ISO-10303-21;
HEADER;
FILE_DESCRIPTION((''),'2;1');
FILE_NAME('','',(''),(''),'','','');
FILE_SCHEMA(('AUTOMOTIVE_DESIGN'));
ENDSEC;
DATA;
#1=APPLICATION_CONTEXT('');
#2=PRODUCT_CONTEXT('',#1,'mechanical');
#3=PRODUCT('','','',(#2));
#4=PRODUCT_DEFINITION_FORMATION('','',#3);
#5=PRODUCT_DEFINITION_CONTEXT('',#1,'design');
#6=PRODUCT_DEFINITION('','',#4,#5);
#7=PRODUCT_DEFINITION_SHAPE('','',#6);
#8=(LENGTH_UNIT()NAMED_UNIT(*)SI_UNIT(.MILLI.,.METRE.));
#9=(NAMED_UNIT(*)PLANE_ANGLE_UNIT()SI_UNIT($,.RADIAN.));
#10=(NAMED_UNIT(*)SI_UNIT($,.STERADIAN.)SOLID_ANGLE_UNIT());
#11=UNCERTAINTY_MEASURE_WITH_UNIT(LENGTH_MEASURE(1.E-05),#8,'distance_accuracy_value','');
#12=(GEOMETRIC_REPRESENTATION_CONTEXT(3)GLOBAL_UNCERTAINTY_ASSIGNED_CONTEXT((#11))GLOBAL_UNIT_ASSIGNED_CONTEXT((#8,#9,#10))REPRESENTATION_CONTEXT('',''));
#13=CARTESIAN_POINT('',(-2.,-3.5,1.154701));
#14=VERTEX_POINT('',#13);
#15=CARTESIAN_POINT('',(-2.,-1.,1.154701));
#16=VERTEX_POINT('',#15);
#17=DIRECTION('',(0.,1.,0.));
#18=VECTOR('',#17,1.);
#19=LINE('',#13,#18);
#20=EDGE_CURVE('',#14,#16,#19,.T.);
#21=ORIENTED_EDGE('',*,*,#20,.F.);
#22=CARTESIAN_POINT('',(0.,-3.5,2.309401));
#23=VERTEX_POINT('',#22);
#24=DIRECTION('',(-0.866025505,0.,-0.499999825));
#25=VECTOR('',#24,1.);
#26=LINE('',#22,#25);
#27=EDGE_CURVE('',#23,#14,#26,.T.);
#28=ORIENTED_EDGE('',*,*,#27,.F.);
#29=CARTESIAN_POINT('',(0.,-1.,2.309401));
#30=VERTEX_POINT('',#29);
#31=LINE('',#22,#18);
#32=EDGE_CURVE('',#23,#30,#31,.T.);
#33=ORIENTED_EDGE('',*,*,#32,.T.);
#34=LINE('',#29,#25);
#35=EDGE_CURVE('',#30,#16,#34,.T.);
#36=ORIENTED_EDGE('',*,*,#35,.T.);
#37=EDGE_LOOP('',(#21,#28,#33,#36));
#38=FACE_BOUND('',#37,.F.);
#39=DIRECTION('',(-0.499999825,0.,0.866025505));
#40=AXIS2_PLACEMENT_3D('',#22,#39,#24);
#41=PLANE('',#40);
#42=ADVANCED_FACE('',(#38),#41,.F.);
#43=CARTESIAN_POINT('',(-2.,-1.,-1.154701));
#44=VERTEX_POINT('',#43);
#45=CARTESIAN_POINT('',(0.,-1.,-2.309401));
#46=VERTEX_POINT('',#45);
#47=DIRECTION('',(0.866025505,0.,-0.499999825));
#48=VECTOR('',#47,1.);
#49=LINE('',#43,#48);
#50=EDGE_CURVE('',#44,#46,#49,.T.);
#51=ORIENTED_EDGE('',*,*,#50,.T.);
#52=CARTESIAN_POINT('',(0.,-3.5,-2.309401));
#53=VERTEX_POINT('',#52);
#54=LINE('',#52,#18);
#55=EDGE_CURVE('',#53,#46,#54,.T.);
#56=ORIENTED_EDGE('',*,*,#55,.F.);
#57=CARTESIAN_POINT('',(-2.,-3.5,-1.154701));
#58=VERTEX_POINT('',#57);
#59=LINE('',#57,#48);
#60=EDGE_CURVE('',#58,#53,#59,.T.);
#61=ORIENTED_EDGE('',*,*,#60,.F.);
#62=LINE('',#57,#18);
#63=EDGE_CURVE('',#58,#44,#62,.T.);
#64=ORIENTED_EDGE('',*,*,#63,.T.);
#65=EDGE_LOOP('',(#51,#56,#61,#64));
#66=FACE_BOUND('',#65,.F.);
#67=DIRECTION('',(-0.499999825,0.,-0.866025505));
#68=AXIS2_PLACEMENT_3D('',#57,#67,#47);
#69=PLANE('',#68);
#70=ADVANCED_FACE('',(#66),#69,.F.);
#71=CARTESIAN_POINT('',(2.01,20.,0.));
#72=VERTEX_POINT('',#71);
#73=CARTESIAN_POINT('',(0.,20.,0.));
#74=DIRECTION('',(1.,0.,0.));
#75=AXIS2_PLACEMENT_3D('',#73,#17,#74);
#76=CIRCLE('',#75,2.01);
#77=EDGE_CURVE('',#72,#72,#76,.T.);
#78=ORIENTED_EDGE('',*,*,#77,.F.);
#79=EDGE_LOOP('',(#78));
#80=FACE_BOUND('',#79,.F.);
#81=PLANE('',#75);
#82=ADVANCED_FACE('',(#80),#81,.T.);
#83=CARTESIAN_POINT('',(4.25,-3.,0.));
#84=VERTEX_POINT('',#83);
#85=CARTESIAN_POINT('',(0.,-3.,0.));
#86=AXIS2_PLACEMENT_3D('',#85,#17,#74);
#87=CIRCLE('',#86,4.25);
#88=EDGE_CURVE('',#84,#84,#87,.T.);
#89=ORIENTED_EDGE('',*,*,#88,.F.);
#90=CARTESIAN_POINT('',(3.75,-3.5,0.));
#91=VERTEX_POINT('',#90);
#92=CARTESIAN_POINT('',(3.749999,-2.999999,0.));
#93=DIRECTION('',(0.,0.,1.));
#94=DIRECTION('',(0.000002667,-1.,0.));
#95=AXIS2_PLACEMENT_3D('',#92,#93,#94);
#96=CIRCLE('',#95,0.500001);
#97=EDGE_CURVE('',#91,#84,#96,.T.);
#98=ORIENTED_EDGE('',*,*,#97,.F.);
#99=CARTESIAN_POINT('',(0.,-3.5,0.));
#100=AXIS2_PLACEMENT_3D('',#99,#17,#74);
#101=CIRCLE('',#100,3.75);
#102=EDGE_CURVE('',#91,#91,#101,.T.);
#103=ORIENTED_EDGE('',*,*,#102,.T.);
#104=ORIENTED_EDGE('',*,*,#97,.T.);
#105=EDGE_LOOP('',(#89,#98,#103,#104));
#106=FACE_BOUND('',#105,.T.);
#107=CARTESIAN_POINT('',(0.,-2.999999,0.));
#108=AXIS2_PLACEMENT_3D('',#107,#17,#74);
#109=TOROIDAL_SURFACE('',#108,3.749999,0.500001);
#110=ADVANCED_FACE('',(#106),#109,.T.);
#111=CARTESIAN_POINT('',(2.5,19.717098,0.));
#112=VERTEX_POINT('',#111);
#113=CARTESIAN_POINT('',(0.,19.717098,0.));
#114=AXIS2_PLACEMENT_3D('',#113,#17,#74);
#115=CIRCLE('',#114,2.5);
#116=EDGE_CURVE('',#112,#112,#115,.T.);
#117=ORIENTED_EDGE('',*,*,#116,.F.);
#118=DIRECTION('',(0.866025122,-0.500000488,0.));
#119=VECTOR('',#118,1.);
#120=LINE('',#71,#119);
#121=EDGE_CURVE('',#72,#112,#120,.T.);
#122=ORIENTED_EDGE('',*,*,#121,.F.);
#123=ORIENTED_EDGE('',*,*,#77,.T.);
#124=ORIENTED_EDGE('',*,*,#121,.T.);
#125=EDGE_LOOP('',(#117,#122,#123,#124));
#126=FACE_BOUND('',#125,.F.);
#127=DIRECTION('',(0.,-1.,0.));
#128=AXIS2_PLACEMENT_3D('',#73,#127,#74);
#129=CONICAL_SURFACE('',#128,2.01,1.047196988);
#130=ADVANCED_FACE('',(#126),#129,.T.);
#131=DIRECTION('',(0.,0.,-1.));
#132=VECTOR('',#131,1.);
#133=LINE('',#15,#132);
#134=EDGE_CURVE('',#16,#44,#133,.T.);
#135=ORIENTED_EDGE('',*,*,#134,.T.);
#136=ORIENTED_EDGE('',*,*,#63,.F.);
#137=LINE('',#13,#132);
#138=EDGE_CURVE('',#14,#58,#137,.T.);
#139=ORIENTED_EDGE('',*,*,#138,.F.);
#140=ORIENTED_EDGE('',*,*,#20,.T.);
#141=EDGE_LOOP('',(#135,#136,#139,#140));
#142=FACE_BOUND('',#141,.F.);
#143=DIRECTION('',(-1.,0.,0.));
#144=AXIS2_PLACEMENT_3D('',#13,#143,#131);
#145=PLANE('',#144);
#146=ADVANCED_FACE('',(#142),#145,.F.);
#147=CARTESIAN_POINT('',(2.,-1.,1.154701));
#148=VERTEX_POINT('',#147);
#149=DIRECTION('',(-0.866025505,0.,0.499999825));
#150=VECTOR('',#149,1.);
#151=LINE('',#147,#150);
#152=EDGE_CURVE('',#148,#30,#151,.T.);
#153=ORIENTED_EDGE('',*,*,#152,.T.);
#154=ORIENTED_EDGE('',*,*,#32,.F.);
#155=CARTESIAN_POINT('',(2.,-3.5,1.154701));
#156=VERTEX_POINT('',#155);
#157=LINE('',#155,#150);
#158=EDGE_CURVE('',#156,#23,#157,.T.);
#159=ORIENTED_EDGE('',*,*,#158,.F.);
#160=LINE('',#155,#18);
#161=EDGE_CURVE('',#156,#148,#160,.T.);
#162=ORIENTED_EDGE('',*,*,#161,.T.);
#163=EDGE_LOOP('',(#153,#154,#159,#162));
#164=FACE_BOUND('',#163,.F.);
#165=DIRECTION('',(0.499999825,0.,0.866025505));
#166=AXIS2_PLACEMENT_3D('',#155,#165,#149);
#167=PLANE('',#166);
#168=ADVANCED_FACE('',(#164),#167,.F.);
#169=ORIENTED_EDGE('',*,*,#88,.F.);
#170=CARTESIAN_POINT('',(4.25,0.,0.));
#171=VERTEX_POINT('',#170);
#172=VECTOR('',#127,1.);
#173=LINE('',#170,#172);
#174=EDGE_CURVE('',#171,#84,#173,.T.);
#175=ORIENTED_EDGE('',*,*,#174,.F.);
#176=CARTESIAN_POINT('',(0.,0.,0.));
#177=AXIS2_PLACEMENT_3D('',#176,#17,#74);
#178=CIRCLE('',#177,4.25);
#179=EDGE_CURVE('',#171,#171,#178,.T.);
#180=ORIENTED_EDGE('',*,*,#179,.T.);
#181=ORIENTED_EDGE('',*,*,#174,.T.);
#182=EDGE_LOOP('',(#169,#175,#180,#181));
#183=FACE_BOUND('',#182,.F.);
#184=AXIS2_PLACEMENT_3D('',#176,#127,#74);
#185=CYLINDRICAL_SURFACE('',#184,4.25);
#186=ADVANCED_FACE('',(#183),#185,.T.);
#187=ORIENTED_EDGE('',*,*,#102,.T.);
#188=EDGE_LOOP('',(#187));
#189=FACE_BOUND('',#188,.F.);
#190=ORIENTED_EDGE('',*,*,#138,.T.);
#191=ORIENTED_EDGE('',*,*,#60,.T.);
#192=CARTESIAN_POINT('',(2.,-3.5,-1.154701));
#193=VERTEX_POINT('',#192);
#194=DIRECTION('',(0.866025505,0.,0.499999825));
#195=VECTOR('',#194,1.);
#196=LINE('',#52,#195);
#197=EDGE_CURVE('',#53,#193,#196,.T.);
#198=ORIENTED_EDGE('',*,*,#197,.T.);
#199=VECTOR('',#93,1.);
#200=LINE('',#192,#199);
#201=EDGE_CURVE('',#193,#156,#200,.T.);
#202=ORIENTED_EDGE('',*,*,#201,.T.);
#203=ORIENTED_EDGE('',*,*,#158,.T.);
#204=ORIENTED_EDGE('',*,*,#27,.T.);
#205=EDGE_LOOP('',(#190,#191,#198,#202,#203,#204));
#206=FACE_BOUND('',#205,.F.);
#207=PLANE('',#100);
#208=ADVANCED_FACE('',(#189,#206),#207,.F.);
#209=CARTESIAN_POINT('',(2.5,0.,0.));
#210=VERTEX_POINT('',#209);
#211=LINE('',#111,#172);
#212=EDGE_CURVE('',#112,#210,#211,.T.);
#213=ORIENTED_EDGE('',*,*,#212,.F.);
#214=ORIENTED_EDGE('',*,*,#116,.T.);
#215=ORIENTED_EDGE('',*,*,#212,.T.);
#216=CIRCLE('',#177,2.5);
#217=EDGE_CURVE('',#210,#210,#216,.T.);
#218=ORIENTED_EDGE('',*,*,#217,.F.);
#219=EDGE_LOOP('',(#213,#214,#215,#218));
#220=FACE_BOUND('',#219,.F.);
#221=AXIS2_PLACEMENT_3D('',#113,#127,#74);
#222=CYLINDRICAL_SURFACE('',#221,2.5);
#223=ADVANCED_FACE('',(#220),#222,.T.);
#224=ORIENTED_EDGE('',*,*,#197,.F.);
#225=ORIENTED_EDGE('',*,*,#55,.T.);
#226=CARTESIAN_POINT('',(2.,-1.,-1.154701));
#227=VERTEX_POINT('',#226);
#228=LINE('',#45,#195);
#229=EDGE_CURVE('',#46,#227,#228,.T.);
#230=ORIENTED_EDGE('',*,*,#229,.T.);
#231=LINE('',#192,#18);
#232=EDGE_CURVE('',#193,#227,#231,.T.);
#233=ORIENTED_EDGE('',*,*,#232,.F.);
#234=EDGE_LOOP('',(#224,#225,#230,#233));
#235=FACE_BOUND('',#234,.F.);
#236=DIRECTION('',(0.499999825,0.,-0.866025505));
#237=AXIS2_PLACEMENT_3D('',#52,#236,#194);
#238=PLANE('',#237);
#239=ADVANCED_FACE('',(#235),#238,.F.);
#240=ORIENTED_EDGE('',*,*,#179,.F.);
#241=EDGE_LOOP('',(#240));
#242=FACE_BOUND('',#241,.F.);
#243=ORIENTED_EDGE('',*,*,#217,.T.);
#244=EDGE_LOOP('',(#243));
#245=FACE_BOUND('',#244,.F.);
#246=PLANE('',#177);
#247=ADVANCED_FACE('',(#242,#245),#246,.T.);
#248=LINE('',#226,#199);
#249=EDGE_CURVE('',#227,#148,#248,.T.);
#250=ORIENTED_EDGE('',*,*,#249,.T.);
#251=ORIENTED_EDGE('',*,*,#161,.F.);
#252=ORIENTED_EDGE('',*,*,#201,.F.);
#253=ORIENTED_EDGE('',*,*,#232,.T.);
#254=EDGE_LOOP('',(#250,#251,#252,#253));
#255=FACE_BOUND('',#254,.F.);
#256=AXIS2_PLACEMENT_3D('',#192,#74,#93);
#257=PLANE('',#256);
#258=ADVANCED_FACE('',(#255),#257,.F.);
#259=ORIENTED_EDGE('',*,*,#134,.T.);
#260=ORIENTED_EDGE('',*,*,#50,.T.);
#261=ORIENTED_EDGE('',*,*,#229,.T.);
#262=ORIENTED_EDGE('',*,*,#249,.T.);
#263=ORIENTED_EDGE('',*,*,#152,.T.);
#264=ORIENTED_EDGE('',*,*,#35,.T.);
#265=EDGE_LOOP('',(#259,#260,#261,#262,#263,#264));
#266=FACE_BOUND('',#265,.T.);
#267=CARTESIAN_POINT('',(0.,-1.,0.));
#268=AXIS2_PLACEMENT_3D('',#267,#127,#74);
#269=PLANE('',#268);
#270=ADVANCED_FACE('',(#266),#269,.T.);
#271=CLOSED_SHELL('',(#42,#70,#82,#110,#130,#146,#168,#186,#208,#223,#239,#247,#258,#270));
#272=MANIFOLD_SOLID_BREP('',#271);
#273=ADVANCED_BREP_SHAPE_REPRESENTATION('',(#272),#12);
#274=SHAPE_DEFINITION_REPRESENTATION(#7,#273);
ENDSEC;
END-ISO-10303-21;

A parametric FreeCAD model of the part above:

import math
import FreeCAD as App
import Part
import Sketcher
Q = App.Units.Quantity

doc = App.newDocument("Part")
params = doc.addObject("Spreadsheet::Sheet", "Params")
for row, (alias, value) in enumerate([
    ("sketch1_radius", "0.500001 mm"),
    ("sketch1_height", "3 mm"),
    ("sketch1_height2", "23.5 mm"),
    ("sketch1_width", "1.75 mm"),
    ("sketch1_width2", "2.01 mm"),
    ("revolution_angle", "360 deg"),
    ("pocket1_length", "2.5 mm"),
], start=1):
    params.set(f"A{row}", alias)
    params.set(f"B{row}", "=" + value)
    params.setAlias(f"B{row}", alias)

body = doc.addObject("PartDesign::Body", "Body")

sketch1 = body.newObject("Sketcher::SketchObject", "Sketch")
sketch1.AttachmentSupport = (doc.getObject("XY_Plane"), [""])
sketch1.MapMode = "FlatFace"
sketch1.addGeometry(Part.LineSegment(App.Vector(4.25, 0, 0), App.Vector(2.5, 0, 0)), False)
sketch1.addGeometry(Part.LineSegment(App.Vector(2.5, 0, 0), App.Vector(2.5, 19.717098, 0)), False)
sketch1.addGeometry(Part.LineSegment(App.Vector(2.5, 19.717098, 0), App.Vector(2.01, 20, 0)), False)
sketch1.addGeometry(Part.LineSegment(App.Vector(2.01, 20, 0), App.Vector(0, 20, 0)), False)
sketch1.addGeometry(Part.LineSegment(App.Vector(0, 20, 0), App.Vector(0, -3.5, 0)), False)
sketch1.addGeometry(Part.LineSegment(App.Vector(0, -3.5, 0), App.Vector(3.75, -3.5, 0)), False)
sketch1.addGeometry(Part.ArcOfCircle(Part.Circle(App.Vector(3.749999, -2.999999, 0), App.Vector(0, 0, 1), 0.500001), math.radians(-89.999847), math.radians(-0.000153)), False)
sketch1.addGeometry(Part.LineSegment(App.Vector(4.25, -3, 0), App.Vector(4.25, 0, 0)), False)
sketch1.addConstraint(Sketcher.Constraint("Coincident", 0, 2, 1, 1))
sketch1.addConstraint(Sketcher.Constraint("Coincident", 1, 2, 2, 1))
sketch1.addConstraint(Sketcher.Constraint("Coincident", 2, 2, 3, 1))
sketch1.addConstraint(Sketcher.Constraint("Coincident", 3, 2, 4, 1))
sketch1.addConstraint(Sketcher.Constraint("Coincident", 4, 2, 5, 1))
sketch1.addConstraint(Sketcher.Constraint("Coincident", 5, 2, 6, 1))
sketch1.addConstraint(Sketcher.Constraint("Coincident", 6, 2, 7, 1))
sketch1.addConstraint(Sketcher.Constraint("Coincident", 7, 2, 0, 1))
sketch1.addConstraint(Sketcher.Constraint("Horizontal", 0))
sketch1.addConstraint(Sketcher.Constraint("Vertical", 1))
sketch1.addConstraint(Sketcher.Constraint("Horizontal", 3))
sketch1.addConstraint(Sketcher.Constraint("Vertical", 4))
sketch1.addConstraint(Sketcher.Constraint("Horizontal", 5))
sketch1.addConstraint(Sketcher.Constraint("Vertical", 7))
sketch1.addConstraint(Sketcher.Constraint("PointOnObject", 0, 2, -1))
sketch1.addConstraint(Sketcher.Constraint("PointOnObject", 3, 2, -2))
sketch1.addConstraint(Sketcher.Constraint("Vertical", 6, 3, 5, 2))
sketch1.addConstraint(Sketcher.Constraint("Radius", 6, 0.500001))
sketch1.addConstraint(Sketcher.Constraint("DistanceY", 7, 1, 7, 2, 3.0))
sketch1.addConstraint(Sketcher.Constraint("DistanceY", 4, 2, 4, 1, 23.5))
sketch1.addConstraint(Sketcher.Constraint("DistanceY", 6, 3, -1, 1, 2.999999))
sketch1.addConstraint(Sketcher.Constraint("DistanceX", 0, 2, 0, 1, 1.75))
sketch1.addConstraint(Sketcher.Constraint("DistanceX", 3, 2, 3, 1, 2.01))
sketch1.addConstraint(Sketcher.Constraint("DistanceX", 5, 1, 5, 2, 3.75))
sketch1.addConstraint(Sketcher.Constraint("DistanceY", 1, 1, 1, 2, 19.717098))
sketch1.setExpression("Constraints[17]", "Params.sketch1_radius")
sketch1.setExpression("Constraints[18]", "Params.sketch1_height")
sketch1.setExpression("Constraints[19]", "Params.sketch1_height2")
sketch1.setExpression("Constraints[21]", "Params.sketch1_width")
sketch1.setExpression("Constraints[22]", "Params.sketch1_width2")
revolution = body.newObject("PartDesign::Revolution", "Revolution")
revolution.Profile = sketch1
revolution.ReferenceAxis = (sketch1, ["V_Axis"])
revolution.setExpression("Angle", "Params.revolution_angle")

sketch2 = body.newObject("Sketcher::SketchObject", "Sketch001")
sketch2.AttachmentSupport = (doc.getObject("XZ_Plane"), [""])
sketch2.MapMode = "FlatFace"
sketch2.AttachmentOffset = App.Placement(App.Vector(0, 0, 3.5), App.Rotation())
sketch2.addGeometry(Part.LineSegment(App.Vector(-2, 1.154701, 0), App.Vector(-2, -1.154701, 0)), False)
sketch2.addGeometry(Part.LineSegment(App.Vector(-2, -1.154701, 0), App.Vector(0, -2.309401, 0)), False)
sketch2.addGeometry(Part.LineSegment(App.Vector(0, -2.309401, 0), App.Vector(2, -1.154701, 0)), False)
sketch2.addGeometry(Part.LineSegment(App.Vector(2, -1.154701, 0), App.Vector(2, 1.154701, 0)), False)
sketch2.addGeometry(Part.LineSegment(App.Vector(2, 1.154701, 0), App.Vector(0, 2.309401, 0)), False)
sketch2.addGeometry(Part.LineSegment(App.Vector(0, 2.309401, 0), App.Vector(-2, 1.154701, 0)), False)
sketch2.addConstraint(Sketcher.Constraint("Coincident", 0, 2, 1, 1))
sketch2.addConstraint(Sketcher.Constraint("Coincident", 1, 2, 2, 1))
sketch2.addConstraint(Sketcher.Constraint("Coincident", 2, 2, 3, 1))
sketch2.addConstraint(Sketcher.Constraint("Coincident", 3, 2, 4, 1))
sketch2.addConstraint(Sketcher.Constraint("Coincident", 4, 2, 5, 1))
sketch2.addConstraint(Sketcher.Constraint("Coincident", 5, 2, 0, 1))
sketch2.addConstraint(Sketcher.Constraint("Vertical", 0))
sketch2.addConstraint(Sketcher.Constraint("Vertical", 3))
sketch2.addConstraint(Sketcher.Constraint("Symmetric", 0, 2, 3, 2, -1, 1))
sketch2.addConstraint(Sketcher.Constraint("Symmetric", 1, 2, 4, 2, -1, 1))
sketch2.addConstraint(Sketcher.Constraint("PointOnObject", 1, 2, -2))
sketch2.addConstraint(Sketcher.Constraint("Parallel", 2, 5))
sketch2.addConstraint(Sketcher.Constraint("Horizontal", 0, 2, 2, 2))
sketch2.addConstraint(Sketcher.Constraint("Angle", 1, Q("-29.999988 deg")))
sketch2.addConstraint(Sketcher.Constraint("DistanceX", 0, 2, -1, 1, 2.0))
sketch2.addConstraint(Sketcher.Constraint("DistanceY", 0, 2, 0, 1, 2.309402))
pocket1 = body.newObject("PartDesign::Pocket", "Pocket")
pocket1.Profile = sketch2
pocket1.setExpression("Length", "Params.pocket1_length")

doc.recompute()
